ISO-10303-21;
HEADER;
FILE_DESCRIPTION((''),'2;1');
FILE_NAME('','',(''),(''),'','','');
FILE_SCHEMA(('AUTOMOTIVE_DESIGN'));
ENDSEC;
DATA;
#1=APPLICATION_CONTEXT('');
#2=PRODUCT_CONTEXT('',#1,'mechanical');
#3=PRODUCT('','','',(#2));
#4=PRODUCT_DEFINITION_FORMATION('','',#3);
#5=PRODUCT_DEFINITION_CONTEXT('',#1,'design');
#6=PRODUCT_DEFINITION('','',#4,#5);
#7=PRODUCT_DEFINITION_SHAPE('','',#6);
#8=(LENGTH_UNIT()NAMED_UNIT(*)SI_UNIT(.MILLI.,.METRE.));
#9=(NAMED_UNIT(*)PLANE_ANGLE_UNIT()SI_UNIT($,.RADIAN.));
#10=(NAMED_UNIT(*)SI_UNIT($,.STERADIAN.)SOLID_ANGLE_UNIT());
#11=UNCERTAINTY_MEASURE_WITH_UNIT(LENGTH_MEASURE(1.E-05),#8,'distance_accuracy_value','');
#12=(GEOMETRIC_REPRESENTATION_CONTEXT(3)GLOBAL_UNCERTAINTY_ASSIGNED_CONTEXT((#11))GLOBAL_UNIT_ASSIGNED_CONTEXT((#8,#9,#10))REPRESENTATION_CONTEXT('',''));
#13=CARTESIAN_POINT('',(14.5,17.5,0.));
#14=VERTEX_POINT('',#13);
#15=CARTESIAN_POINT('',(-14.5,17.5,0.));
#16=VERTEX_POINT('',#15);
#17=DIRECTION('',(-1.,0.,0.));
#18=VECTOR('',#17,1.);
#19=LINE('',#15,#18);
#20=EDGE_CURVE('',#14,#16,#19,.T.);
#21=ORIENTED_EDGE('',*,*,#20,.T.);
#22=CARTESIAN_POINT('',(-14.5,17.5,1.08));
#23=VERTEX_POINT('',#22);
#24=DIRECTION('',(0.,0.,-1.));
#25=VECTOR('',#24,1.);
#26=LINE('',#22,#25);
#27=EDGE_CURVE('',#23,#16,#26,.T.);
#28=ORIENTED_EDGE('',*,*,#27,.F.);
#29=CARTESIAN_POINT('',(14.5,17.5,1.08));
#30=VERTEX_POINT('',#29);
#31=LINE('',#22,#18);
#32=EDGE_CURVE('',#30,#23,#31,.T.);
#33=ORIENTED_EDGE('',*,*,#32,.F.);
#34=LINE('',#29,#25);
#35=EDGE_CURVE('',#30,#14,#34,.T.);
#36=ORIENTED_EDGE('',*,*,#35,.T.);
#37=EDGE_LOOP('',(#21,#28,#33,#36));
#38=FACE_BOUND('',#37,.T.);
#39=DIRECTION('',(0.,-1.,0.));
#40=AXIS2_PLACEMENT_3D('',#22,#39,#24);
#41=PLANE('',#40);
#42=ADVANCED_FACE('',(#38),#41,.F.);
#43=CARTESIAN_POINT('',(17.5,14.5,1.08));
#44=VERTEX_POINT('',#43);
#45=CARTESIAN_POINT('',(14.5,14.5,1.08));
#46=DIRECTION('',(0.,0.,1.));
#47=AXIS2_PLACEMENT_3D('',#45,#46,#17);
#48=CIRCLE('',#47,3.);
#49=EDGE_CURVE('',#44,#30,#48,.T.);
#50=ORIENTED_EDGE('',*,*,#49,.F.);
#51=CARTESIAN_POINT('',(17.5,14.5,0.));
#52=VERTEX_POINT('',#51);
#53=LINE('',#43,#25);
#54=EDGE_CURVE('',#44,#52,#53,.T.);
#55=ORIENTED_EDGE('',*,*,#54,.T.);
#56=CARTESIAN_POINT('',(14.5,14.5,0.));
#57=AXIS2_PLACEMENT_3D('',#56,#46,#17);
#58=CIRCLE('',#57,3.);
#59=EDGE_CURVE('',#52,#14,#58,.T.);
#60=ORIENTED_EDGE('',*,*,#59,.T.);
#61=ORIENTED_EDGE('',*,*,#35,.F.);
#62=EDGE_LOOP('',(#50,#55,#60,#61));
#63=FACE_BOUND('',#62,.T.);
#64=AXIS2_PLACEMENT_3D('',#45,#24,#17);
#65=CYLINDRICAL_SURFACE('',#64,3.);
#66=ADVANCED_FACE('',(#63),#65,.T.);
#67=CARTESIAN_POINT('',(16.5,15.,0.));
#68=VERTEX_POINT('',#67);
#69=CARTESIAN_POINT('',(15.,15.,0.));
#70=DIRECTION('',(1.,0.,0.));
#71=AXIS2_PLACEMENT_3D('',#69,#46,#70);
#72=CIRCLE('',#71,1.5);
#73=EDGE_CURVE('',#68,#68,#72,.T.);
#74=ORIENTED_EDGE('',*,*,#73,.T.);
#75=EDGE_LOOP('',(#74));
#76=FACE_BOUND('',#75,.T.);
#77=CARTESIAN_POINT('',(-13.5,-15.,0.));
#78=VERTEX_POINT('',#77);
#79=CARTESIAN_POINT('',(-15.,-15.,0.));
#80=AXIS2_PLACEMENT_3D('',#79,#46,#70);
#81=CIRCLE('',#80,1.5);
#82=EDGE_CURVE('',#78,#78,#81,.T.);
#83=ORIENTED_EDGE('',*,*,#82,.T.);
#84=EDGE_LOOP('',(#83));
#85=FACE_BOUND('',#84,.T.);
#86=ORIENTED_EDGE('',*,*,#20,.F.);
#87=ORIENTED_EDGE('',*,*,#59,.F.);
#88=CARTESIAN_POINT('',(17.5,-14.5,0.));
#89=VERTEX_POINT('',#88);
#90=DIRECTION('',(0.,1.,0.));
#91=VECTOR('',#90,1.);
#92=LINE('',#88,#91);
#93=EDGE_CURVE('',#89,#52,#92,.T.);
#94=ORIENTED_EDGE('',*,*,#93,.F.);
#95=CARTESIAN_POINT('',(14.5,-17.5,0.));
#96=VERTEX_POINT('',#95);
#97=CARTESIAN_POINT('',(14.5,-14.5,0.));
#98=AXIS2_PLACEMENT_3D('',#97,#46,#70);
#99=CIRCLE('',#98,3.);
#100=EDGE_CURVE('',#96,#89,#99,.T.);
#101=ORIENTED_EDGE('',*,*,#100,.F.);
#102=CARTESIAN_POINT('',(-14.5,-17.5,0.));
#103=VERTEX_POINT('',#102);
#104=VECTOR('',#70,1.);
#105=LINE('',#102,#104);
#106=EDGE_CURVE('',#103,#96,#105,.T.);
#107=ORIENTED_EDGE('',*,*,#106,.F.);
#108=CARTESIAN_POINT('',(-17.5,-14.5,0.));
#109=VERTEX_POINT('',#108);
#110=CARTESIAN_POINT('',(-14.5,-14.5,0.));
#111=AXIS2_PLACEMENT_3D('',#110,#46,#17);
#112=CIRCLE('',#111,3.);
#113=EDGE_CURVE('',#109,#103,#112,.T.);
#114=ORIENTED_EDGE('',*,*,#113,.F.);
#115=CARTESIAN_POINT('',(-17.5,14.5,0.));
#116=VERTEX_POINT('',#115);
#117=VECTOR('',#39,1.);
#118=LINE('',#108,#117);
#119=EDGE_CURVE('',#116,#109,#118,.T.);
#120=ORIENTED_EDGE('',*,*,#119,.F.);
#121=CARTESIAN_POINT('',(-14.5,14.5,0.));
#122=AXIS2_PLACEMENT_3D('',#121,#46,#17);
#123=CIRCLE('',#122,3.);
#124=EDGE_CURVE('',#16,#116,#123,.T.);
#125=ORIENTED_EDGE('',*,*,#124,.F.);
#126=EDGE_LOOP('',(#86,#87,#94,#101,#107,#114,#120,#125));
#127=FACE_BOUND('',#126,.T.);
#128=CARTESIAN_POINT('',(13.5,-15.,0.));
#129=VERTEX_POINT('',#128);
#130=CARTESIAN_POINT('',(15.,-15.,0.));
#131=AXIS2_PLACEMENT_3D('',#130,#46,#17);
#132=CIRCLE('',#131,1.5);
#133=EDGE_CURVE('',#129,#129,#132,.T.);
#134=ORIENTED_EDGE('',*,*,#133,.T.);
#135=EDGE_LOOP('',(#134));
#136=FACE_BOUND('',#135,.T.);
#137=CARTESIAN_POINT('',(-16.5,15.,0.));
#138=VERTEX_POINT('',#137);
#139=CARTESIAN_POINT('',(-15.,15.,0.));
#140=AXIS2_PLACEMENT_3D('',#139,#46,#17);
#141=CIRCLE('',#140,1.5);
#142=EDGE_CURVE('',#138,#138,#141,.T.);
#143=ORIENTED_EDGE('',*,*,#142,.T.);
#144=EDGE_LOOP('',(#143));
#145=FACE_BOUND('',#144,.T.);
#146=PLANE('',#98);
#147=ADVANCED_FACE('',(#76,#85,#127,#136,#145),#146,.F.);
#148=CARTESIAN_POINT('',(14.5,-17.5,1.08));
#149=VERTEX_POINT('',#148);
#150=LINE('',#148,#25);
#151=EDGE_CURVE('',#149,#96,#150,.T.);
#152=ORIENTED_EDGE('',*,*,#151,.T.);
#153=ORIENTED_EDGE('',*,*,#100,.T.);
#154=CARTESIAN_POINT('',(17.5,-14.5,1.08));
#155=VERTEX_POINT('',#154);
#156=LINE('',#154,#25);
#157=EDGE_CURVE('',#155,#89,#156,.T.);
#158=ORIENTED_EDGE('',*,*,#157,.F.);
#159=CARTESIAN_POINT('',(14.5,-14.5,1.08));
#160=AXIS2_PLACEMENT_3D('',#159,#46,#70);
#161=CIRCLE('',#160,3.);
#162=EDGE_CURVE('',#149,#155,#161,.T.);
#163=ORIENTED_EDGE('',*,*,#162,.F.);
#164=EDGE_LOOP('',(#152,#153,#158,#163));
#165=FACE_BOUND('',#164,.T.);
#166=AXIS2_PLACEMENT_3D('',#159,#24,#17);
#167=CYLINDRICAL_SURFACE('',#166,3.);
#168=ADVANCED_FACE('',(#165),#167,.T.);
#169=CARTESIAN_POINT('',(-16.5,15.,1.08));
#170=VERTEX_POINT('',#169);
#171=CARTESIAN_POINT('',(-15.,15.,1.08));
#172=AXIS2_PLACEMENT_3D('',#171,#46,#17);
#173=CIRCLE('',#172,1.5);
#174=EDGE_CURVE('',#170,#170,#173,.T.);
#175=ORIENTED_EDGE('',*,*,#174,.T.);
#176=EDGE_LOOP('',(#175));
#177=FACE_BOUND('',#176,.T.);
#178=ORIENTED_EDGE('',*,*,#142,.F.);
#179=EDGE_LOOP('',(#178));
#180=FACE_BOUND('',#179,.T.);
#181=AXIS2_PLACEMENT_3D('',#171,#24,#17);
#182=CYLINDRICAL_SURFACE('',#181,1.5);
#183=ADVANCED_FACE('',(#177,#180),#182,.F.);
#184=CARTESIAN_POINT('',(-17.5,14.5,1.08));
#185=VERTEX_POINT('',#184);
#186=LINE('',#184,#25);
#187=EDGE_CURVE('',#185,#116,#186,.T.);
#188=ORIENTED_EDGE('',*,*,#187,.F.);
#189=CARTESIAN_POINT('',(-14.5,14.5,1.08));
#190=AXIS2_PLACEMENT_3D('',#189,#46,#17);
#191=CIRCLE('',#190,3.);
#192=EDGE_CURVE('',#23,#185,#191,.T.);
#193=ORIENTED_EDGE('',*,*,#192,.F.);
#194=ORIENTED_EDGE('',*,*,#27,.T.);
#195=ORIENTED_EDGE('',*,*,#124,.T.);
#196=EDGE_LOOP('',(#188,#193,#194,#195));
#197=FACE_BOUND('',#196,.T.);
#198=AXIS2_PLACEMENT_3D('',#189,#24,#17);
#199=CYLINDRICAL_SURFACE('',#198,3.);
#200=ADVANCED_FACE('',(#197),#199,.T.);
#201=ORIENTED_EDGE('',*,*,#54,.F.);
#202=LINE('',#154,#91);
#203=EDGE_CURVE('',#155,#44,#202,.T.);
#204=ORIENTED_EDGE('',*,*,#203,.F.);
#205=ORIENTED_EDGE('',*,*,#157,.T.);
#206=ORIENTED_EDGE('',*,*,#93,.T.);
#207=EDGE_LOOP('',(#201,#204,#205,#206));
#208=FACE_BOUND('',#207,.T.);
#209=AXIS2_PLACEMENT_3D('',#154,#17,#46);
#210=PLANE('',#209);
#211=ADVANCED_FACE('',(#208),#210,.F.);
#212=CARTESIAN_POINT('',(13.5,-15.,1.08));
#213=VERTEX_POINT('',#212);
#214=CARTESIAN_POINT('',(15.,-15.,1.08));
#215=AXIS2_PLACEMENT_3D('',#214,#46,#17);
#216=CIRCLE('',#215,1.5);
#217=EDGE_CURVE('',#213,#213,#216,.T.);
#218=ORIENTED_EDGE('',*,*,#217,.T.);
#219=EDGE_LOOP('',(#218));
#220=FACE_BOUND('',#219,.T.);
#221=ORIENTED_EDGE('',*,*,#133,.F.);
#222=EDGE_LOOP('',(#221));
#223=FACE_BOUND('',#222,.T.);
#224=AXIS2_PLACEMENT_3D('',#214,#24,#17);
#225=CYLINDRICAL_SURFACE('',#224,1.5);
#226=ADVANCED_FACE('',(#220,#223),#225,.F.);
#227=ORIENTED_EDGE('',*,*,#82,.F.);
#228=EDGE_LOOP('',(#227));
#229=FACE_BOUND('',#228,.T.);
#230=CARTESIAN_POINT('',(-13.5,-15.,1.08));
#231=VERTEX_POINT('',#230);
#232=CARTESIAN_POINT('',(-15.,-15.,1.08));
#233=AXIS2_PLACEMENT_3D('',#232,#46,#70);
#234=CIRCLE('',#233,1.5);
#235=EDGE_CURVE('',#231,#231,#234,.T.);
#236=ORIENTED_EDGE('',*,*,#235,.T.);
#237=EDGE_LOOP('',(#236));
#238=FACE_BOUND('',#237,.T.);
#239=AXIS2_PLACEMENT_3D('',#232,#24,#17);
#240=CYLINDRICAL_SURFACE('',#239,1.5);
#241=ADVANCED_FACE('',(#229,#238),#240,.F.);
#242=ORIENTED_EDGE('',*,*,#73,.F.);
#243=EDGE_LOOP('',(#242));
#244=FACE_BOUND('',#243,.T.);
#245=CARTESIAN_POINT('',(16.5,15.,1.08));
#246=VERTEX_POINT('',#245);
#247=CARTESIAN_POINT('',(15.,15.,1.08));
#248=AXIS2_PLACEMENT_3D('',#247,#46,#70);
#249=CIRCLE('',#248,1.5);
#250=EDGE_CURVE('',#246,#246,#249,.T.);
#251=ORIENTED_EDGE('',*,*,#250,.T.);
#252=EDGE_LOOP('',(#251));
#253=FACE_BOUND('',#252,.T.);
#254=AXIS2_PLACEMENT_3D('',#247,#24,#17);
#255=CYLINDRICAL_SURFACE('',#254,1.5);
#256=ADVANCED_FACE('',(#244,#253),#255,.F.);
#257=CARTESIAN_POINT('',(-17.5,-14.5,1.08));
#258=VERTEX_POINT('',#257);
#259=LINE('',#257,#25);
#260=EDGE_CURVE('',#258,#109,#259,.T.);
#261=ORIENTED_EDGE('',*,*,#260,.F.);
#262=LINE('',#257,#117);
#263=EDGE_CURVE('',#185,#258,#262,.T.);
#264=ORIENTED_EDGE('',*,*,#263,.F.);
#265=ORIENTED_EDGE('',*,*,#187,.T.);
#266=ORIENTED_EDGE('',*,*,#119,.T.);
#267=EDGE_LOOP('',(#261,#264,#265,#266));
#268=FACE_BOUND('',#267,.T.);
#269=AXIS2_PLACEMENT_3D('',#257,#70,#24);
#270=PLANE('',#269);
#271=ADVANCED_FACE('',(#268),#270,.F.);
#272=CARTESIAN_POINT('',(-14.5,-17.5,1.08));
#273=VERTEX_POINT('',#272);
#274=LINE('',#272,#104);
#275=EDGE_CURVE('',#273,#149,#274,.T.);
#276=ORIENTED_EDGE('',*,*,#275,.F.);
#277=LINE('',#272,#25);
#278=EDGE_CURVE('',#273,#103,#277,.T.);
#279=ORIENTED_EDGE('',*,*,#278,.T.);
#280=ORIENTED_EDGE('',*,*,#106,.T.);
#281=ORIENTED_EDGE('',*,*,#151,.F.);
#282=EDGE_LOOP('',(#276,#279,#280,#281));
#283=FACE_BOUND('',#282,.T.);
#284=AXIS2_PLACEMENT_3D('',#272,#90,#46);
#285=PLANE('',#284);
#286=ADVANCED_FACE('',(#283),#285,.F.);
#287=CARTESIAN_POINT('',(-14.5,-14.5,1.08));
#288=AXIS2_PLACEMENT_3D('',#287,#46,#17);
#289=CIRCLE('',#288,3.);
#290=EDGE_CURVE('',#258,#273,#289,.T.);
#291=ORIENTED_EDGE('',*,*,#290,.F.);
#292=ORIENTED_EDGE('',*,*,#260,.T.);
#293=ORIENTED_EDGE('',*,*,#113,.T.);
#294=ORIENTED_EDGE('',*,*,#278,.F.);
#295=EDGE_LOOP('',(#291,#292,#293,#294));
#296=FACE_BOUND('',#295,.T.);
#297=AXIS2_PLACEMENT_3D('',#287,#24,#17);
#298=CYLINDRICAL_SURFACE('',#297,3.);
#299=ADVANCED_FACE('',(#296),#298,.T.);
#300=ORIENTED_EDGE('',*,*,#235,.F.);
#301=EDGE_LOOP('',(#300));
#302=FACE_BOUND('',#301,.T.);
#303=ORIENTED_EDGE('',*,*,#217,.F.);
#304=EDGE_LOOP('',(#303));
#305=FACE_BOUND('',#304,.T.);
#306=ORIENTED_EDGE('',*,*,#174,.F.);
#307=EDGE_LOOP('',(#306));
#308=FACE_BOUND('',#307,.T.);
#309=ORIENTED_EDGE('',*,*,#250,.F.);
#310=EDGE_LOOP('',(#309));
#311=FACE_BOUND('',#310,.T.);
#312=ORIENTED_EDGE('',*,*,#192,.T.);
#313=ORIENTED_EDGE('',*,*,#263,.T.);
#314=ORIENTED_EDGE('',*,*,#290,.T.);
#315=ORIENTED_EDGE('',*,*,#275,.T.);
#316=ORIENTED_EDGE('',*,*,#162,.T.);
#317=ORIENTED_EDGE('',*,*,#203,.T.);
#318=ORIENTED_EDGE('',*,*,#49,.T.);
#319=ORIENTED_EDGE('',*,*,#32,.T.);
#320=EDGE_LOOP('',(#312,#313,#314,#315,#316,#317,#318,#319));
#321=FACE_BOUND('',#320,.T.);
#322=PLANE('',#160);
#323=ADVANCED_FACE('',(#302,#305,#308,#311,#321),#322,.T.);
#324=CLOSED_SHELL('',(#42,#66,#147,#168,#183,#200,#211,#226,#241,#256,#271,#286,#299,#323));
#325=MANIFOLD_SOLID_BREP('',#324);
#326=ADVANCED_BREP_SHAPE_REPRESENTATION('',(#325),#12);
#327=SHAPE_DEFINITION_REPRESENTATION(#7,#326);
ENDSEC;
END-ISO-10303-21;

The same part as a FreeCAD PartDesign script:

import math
import FreeCAD as App
import Part
import Sketcher

V = App.Vector

doc = App.newDocument("Part")
body = doc.addObject("PartDesign::Body", "Body")

# Sketch on XY plane
sketch1 = body.newObject("Sketcher::SketchObject", "Sketch")
sketch1.AttachmentSupport = (doc.getObject("XY_Plane"), [""])
sketch1.MapMode = "FlatFace"
sketch1.addGeometry(Part.LineSegment(V(-14.5, -17.5, 0), V(14.5, -17.5, 0)), False)
sketch1.addGeometry(Part.ArcOfCircle(Part.Circle(V(14.5, -14.5, 0), V(0, 0, 1), 3), math.radians(-90), math.radians(0)), False)
sketch1.addGeometry(Part.LineSegment(V(17.5, -14.5, 0), V(17.5, 14.5, 0)), False)
sketch1.addGeometry(Part.ArcOfCircle(Part.Circle(V(14.5, 14.5, 0), V(0, 0, 1), 3), math.radians(0), math.radians(90)), False)
sketch1.addGeometry(Part.LineSegment(V(14.5, 17.5, 0), V(-14.5, 17.5, 0)), False)
sketch1.addGeometry(Part.ArcOfCircle(Part.Circle(V(-14.5, 14.5, 0), V(0, 0, 1), 3), math.radians(90), math.radians(180)), False)
sketch1.addGeometry(Part.LineSegment(V(-17.5, 14.5, 0), V(-17.5, -14.5, 0)), False)
sketch1.addGeometry(Part.ArcOfCircle(Part.Circle(V(-14.5, -14.5, 0), V(0, 0, 1), 3), math.radians(180), math.radians(270)), False)
sketch1.addGeometry(Part.Circle(V(-15, -15, 0), V(0, 0, 1), 1.5), False)
sketch1.addGeometry(Part.Circle(V(15, -15, 0), V(0, 0, 1), 1.5), False)
sketch1.addGeometry(Part.Circle(V(-15, 15, 0), V(0, 0, 1), 1.5), False)
sketch1.addGeometry(Part.Circle(V(15, 15, 0), V(0, 0, 1), 1.5), False)
sketch1.addConstraint(Sketcher.Constraint("Tangent", 0, 2, 1, 1))
sketch1.addConstraint(Sketcher.Constraint("Tangent", 1, 2, 2, 1))
sketch1.addConstraint(Sketcher.Constraint("Tangent", 2, 2, 3, 1))
sketch1.addConstraint(Sketcher.Constraint("Tangent", 3, 2, 4, 1))
sketch1.addConstraint(Sketcher.Constraint("Tangent", 4, 2, 5, 1))
sketch1.addConstraint(Sketcher.Constraint("Tangent", 5, 2, 6, 1))
sketch1.addConstraint(Sketcher.Constraint("Tangent", 6, 2, 7, 1))
sketch1.addConstraint(Sketcher.Constraint("Tangent", 7, 2, 0, 1))
sketch1.addConstraint(Sketcher.Constraint("Horizontal", 0))
sketch1.addConstraint(Sketcher.Constraint("Vertical", 2))
sketch1.addConstraint(Sketcher.Constraint("Horizontal", 4))
sketch1.addConstraint(Sketcher.Constraint("Vertical", 6))
sketch1.addConstraint(Sketcher.Constraint("Equal", 1, 3))
sketch1.addConstraint(Sketcher.Constraint("Equal", 3, 5))
sketch1.addConstraint(Sketcher.Constraint("Equal", 5, 7))
sketch1.addConstraint(Sketcher.Constraint("Equal", 8, 9))
sketch1.addConstraint(Sketcher.Constraint("Equal", 9, 10))
sketch1.addConstraint(Sketcher.Constraint("Equal", 10, 11))
sketch1.addConstraint(Sketcher.Constraint("Symmetric", 1, 3, 5, 3, -1, 1))
sketch1.addConstraint(Sketcher.Constraint("Symmetric", 9, 3, 10, 3, -1, 1))
sketch1.addConstraint(Sketcher.Constraint("Symmetric", 8, 3, 11, 3, -1, 1))
sketch1.addConstraint(Sketcher.Constraint("Symmetric", 8, 3, 9, 3, -2))
sketch1.addConstraint(Sketcher.Constraint("Equal", 4, 2))
sketch1.addConstraint(Sketcher.Constraint("Diameter", 8, 3.0))
sketch1.addConstraint(Sketcher.Constraint("Radius", 1, 3.0))
sketch1.addConstraint(Sketcher.Constraint("DistanceX", 0, 1, 0, 2, 29.0))
sketch1.addConstraint(Sketcher.Constraint("DistanceX", 8, 3, -1, 1, 15.0))
sketch1.addConstraint(Sketcher.Constraint("DistanceY", 8, 3, -1, 1, 15.0))
pad1 = body.newObject("PartDesign::Pad", "Pad")
pad1.Profile = sketch1
pad1.Length = 1.08

doc.recompute()
